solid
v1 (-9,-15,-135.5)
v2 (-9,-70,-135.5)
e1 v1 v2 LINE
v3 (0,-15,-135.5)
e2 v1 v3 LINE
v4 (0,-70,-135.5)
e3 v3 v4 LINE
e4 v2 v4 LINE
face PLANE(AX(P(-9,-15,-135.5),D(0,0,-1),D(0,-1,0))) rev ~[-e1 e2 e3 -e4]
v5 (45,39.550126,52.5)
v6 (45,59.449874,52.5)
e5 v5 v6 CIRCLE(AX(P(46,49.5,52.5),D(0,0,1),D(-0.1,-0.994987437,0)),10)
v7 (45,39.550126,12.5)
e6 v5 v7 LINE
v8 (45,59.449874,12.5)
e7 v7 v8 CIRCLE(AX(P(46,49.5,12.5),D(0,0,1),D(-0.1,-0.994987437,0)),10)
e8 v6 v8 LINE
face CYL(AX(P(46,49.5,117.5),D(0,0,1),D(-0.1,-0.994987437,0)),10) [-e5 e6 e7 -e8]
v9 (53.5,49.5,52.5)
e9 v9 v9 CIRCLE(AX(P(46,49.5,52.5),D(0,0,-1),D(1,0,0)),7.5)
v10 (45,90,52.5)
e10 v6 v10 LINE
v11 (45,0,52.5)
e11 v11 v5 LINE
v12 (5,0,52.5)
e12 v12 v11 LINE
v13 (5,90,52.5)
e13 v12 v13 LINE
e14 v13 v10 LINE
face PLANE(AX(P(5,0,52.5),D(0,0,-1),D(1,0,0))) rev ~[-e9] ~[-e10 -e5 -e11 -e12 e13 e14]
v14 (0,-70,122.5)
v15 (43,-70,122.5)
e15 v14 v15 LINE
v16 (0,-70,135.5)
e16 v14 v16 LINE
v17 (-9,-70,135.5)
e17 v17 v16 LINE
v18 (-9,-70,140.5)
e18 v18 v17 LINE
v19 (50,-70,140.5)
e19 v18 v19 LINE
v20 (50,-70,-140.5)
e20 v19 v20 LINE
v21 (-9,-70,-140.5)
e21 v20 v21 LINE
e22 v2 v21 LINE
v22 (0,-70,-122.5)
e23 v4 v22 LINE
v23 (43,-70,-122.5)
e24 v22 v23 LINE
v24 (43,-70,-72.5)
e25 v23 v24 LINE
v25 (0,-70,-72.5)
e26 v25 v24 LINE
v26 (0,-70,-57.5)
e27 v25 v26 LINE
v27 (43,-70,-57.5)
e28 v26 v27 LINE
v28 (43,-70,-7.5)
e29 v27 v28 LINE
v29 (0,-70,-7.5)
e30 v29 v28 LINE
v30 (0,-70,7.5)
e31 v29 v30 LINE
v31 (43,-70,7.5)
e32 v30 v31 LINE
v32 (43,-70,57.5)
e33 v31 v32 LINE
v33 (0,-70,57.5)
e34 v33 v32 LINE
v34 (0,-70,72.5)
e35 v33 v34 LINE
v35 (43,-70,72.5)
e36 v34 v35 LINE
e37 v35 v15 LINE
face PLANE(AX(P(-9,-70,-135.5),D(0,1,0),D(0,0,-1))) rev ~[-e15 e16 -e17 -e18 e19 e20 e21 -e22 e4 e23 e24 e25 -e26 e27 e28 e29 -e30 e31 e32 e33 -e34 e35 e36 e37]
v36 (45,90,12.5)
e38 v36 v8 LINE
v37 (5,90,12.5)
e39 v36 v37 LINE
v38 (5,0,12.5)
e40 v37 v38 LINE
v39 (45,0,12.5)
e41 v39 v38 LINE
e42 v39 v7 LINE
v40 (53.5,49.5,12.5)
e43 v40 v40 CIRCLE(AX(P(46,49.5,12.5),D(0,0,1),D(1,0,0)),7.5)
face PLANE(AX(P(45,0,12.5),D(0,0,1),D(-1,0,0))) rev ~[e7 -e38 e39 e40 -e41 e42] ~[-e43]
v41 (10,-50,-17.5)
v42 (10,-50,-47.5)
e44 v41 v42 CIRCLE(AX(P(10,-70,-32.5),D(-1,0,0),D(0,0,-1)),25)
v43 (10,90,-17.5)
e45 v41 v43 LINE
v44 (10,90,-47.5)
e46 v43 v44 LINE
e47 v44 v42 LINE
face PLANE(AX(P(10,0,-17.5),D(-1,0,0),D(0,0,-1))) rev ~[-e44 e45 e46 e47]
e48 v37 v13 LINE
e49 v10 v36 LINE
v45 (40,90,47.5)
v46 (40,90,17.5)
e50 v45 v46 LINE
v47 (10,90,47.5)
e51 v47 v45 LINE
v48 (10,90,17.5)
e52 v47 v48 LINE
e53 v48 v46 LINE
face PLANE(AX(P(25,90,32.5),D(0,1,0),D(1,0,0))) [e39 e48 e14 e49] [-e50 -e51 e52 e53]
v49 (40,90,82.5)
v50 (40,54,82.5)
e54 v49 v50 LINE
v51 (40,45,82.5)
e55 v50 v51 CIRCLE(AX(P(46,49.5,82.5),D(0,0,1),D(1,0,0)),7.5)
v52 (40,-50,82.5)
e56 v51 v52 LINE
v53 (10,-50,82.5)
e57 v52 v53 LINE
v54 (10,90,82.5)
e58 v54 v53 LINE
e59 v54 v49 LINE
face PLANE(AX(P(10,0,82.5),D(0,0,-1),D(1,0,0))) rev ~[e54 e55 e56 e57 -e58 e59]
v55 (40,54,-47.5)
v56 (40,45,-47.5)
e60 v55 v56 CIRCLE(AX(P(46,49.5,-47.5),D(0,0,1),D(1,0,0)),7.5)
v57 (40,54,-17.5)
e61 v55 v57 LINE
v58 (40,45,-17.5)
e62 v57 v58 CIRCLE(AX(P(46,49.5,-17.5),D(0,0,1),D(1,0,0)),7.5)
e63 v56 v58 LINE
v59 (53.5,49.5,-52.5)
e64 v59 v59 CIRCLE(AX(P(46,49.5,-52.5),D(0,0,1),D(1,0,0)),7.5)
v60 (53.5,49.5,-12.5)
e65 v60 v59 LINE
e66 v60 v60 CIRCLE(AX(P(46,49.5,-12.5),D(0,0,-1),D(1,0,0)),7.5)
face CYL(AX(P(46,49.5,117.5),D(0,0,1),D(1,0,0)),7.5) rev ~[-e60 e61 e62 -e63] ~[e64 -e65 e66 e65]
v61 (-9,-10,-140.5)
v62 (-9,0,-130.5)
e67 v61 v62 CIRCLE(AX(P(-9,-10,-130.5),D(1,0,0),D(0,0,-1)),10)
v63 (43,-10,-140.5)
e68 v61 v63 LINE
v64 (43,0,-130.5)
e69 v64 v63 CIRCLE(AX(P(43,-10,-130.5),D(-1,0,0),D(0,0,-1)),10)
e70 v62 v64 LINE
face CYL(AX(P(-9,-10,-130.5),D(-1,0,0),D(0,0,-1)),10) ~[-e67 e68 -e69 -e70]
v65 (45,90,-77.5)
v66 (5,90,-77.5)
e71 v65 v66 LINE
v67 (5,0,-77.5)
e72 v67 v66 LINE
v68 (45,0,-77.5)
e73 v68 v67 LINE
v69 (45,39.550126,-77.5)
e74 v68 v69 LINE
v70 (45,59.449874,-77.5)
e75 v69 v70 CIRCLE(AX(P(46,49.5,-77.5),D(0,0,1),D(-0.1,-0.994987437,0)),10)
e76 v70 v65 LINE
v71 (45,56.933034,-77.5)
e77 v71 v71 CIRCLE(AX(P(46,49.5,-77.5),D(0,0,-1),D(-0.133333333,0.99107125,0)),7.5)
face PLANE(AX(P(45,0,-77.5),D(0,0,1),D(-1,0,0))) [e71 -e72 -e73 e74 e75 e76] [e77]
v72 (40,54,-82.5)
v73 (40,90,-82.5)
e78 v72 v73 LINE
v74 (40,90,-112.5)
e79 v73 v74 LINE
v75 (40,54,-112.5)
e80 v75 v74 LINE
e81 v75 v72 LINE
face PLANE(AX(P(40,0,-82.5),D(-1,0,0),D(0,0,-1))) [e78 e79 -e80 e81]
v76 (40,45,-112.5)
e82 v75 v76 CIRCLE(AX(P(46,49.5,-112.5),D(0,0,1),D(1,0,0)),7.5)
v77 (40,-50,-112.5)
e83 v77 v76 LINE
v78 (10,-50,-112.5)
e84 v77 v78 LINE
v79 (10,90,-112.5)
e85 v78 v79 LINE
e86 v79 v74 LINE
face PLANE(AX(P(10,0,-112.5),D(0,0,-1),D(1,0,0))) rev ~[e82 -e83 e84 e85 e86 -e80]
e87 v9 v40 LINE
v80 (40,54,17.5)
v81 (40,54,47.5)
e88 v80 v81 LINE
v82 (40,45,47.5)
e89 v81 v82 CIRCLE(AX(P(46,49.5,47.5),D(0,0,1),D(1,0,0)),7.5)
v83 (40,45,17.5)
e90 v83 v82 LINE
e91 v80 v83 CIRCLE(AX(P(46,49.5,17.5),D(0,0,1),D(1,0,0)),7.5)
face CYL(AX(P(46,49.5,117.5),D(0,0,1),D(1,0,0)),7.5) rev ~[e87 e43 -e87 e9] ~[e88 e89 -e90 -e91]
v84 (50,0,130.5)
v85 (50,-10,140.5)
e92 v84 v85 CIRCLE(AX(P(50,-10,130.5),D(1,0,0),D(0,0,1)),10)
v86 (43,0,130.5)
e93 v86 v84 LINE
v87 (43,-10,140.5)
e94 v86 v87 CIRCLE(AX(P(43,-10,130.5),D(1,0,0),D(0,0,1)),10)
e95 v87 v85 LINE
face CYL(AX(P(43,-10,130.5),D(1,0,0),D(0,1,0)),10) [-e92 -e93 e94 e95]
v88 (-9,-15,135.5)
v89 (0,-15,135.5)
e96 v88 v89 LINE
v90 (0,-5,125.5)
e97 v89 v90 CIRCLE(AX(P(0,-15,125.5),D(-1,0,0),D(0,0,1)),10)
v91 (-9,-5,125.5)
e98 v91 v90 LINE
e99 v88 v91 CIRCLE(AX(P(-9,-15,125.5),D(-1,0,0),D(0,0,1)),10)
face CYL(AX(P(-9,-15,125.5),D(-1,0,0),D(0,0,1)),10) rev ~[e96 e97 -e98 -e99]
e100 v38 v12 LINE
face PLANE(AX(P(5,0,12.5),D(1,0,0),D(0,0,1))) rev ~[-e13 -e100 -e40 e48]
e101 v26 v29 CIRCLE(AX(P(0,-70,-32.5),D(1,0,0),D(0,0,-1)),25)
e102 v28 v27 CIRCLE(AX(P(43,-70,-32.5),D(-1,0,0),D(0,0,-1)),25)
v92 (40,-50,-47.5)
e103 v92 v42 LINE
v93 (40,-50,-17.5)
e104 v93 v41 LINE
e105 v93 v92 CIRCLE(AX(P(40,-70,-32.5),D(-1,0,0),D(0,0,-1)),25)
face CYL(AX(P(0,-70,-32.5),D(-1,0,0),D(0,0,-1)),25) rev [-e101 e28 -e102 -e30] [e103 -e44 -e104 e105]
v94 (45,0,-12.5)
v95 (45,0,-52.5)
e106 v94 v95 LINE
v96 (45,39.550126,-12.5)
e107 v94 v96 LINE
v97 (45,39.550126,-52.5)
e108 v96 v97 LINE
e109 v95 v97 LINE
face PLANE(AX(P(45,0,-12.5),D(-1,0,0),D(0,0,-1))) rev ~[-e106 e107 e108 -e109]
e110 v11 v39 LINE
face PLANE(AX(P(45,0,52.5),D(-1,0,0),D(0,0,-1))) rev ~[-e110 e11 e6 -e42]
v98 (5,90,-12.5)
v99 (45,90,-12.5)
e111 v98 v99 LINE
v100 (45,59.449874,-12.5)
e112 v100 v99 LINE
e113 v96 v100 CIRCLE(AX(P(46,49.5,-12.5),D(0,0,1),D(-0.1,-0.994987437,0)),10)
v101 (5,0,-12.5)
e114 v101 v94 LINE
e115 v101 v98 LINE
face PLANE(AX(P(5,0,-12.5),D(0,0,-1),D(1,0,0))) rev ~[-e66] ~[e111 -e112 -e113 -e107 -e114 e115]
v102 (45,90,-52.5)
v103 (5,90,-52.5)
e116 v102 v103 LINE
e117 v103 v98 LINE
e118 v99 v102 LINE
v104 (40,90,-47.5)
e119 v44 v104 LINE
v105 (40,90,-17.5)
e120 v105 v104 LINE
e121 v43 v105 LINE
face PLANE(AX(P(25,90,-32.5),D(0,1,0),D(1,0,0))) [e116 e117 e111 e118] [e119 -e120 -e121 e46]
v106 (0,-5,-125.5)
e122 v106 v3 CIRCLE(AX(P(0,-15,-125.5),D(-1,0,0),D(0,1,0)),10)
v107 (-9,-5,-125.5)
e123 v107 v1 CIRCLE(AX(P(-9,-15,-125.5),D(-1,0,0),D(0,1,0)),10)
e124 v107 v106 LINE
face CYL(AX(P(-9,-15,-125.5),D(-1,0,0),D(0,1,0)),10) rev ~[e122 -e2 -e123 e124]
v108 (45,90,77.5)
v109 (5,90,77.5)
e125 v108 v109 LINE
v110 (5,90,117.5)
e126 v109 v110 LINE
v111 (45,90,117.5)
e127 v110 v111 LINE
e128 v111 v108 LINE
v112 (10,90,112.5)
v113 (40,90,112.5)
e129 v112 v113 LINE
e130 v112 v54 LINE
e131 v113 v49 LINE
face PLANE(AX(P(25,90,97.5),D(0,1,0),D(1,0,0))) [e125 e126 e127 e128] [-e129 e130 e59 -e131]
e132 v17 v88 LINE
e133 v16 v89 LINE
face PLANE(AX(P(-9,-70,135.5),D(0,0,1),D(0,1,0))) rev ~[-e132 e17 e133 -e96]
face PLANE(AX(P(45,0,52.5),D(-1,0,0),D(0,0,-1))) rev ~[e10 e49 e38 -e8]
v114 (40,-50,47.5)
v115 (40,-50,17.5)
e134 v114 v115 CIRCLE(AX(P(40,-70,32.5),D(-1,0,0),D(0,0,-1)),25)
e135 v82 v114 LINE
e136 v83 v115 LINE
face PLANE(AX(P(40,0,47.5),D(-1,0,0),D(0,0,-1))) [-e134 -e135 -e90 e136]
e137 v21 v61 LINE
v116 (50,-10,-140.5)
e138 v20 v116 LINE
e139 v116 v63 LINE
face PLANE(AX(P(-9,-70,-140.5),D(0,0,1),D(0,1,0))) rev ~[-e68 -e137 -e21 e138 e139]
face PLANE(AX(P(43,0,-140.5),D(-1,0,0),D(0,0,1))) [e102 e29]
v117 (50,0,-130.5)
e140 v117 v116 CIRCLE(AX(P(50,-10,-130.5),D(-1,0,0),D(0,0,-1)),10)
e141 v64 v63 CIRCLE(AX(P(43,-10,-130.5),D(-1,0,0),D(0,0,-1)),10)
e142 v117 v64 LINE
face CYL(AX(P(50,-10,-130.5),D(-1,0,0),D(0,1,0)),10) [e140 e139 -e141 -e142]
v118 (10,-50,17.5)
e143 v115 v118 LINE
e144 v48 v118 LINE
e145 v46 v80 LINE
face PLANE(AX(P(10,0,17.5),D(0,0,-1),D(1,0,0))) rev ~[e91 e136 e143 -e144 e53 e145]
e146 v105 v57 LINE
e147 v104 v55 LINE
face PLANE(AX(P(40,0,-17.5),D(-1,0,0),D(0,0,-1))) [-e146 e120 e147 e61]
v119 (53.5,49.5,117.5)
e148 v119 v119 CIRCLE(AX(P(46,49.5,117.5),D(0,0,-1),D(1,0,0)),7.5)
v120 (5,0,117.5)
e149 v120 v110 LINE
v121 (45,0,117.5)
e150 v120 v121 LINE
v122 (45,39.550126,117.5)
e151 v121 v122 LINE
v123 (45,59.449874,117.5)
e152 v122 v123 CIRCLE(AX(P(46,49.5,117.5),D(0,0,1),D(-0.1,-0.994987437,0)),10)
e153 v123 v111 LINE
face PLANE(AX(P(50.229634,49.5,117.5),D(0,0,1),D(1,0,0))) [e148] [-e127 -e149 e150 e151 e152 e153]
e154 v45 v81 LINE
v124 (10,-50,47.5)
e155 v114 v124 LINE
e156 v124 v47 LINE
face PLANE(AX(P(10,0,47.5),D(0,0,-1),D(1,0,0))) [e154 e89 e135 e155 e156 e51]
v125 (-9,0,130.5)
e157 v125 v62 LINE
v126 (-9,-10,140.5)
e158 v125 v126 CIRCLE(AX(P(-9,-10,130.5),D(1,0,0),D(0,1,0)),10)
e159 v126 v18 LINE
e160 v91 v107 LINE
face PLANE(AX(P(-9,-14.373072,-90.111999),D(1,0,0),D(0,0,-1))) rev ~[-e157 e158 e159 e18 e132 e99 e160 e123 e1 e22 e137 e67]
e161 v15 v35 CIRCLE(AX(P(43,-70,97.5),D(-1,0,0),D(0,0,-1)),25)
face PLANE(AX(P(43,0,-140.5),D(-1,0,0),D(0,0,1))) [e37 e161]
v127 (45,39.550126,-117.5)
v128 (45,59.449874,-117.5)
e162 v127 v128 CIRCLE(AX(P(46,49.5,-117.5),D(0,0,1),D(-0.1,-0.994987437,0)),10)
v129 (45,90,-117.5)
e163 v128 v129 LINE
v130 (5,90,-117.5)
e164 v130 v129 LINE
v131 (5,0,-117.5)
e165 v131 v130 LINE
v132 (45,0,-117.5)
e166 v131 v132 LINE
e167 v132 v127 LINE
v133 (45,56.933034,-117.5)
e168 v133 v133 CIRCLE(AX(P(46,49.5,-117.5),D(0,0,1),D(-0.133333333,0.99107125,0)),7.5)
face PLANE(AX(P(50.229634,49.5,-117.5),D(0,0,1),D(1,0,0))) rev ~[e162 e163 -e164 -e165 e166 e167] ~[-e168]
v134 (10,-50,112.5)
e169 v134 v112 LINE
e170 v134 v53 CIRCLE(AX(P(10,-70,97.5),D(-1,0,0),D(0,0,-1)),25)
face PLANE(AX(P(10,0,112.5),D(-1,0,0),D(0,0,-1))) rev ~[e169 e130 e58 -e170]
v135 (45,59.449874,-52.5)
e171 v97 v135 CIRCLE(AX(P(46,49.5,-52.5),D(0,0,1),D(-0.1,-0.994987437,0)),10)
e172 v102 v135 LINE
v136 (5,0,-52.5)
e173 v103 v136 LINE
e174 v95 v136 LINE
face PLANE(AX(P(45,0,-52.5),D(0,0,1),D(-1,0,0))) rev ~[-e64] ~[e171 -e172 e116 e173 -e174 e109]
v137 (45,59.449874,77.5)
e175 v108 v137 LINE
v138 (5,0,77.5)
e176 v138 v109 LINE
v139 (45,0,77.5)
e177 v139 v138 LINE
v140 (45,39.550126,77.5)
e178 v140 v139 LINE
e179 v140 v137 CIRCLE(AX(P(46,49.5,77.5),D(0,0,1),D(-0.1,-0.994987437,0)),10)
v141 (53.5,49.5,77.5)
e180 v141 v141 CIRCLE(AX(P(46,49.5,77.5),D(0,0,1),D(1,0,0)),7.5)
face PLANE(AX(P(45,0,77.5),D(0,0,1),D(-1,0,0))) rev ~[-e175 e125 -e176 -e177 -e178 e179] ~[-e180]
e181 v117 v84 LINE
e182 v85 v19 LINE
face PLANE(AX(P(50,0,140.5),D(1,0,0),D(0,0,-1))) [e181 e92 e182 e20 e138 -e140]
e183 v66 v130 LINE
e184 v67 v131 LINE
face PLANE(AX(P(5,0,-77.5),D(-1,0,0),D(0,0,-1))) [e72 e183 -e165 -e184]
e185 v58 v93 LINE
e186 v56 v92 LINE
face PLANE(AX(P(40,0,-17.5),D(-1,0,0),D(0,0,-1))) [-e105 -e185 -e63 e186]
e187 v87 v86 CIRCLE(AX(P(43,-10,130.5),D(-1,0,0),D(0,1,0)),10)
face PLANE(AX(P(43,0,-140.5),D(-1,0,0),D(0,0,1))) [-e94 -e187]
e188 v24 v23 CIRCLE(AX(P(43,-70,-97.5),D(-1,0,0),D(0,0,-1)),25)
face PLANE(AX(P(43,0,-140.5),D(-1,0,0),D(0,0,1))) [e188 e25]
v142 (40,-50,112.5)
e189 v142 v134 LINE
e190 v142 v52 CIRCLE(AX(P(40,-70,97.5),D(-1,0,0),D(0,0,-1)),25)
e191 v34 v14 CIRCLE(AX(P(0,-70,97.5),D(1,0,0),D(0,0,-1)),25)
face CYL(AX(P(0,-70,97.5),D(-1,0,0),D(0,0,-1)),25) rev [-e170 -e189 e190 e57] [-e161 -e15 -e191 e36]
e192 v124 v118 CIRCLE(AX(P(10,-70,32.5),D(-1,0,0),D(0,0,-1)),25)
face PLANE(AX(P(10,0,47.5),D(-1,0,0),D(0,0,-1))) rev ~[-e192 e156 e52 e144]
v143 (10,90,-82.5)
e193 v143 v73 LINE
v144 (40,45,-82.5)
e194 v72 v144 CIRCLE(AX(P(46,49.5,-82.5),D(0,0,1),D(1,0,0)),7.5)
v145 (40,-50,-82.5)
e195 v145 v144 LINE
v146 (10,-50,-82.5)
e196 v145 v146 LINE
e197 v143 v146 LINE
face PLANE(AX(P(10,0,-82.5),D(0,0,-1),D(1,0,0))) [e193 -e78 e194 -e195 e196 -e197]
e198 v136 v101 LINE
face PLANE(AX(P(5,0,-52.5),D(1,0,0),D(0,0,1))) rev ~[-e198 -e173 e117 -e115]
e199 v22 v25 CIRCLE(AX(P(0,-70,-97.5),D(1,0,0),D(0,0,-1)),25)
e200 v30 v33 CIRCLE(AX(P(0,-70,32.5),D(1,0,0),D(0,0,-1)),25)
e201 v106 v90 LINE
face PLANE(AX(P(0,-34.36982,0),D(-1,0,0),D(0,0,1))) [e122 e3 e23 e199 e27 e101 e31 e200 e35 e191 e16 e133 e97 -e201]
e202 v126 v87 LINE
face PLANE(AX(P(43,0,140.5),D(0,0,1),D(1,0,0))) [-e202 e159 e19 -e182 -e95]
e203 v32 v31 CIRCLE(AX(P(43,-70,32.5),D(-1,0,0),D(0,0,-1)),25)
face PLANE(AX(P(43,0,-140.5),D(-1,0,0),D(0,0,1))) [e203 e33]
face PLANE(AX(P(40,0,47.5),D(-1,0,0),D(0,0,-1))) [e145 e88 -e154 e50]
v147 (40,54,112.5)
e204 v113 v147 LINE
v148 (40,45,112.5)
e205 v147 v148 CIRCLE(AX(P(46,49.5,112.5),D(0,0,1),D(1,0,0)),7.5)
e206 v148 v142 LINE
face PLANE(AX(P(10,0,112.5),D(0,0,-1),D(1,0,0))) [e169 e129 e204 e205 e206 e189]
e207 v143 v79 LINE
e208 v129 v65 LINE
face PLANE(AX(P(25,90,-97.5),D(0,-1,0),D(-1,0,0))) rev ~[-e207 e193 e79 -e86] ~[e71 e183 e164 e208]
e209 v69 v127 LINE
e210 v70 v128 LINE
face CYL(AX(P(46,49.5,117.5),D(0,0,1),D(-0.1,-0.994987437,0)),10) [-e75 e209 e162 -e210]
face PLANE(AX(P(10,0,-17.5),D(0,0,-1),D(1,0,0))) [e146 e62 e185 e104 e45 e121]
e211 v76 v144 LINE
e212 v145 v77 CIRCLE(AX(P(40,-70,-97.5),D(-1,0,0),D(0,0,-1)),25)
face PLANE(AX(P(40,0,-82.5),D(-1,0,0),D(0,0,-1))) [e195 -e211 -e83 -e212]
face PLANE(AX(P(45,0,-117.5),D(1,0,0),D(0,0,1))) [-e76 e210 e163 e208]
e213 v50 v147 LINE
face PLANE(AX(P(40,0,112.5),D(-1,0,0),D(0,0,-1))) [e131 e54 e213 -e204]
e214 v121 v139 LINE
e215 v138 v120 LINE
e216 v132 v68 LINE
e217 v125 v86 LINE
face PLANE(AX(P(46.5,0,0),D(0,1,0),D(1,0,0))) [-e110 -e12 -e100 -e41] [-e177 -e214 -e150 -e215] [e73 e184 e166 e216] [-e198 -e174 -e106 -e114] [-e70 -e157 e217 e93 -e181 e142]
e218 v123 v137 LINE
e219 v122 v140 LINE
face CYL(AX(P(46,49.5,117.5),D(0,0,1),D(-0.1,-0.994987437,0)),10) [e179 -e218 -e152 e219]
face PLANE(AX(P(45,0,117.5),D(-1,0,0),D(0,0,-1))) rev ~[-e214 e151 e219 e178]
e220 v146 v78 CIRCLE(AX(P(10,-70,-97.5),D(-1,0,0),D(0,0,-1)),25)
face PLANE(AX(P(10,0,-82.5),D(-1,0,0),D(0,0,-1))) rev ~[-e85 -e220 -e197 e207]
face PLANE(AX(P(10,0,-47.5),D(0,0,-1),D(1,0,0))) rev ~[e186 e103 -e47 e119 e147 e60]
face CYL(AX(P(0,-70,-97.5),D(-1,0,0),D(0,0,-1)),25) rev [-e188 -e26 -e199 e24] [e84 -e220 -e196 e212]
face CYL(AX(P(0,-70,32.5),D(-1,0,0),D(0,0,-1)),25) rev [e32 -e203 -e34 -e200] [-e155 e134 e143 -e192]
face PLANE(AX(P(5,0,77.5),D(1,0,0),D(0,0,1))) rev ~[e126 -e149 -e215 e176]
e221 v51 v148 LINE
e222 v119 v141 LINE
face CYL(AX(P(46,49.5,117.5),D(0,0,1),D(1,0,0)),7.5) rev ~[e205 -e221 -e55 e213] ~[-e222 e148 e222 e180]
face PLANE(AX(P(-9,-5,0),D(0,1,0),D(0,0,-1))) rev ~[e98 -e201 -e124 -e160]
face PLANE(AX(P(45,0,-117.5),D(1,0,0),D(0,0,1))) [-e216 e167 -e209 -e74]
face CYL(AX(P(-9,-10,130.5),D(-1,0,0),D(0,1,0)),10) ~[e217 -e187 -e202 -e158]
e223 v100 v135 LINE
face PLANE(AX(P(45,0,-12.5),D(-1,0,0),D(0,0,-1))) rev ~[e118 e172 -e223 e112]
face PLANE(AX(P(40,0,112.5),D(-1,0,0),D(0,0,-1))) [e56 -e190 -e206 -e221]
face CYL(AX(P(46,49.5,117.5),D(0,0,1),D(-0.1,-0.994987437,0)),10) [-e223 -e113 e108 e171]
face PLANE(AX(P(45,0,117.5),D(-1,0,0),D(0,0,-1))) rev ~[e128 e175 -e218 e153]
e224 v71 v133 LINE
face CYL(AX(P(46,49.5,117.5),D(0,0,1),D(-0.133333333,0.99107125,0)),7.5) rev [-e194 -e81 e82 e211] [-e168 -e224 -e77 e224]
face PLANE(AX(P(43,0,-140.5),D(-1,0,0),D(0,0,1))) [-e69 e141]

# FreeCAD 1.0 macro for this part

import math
import FreeCAD as App
import Part
import Sketcher
Q = App.Units.Quantity


def edges_at(feature, points):
    """Names of the edges that pass closest to the given points."""
    edges = feature.Shape.Edges
    near = lambda p: min(range(len(edges)), key=lambda i: edges[i].distToShape(Part.Vertex(*p))[0])
    return sorted({f"Edge{near(p) + 1}" for p in points})


def add_polygon(sketch, points):
    """Adds a closed chain of lines whose ends are joined by coincident constraints."""
    first, n = sketch.GeometryCount, len(points)
    for a, b in zip(points, points[1:] + points[:1]):
        sketch.addGeometry(Part.LineSegment(App.Vector(*a, 0), App.Vector(*b, 0)), False)
    for i in range(n):
        sketch.addConstraint(Sketcher.Constraint("Coincident", first + i, 2, first + (i + 1) % n, 1))

doc = App.newDocument("Part")
body = doc.addObject("PartDesign::Body", "Body")

# Sketch on YZ plane
sketch1 = doc.addObject("Sketcher::SketchObject", "Sketch")
body.addObject(sketch1)
sketch1.AttachmentSupport = (doc.YZ_Plane, [""])
sketch1.MapMode = "FlatFace"
sketch1.addGeometry([
    Part.LineSegment(App.Vector(0, -130, 0), App.Vector(0, 130, 0)),  # 0
    Part.ArcOfCircle(Part.Circle(App.Vector(-10, 130, 0), App.Vector(0, 0, 1), 10), math.radians(0), math.radians(90)),  # 1
    Part.LineSegment(App.Vector(-10, 140, 0), App.Vector(-70, 140, 0)),  # 2
    Part.LineSegment(App.Vector(-70, 140, 0), App.Vector(-70, 122, 0)),  # 3
    Part.ArcOfCircle(Part.Circle(App.Vector(-70, 98, 0), App.Vector(0, 0, 1), 25), math.radians(-90), math.radians(90)),  # 4
    Part.LineSegment(App.Vector(-70, 72, 0), App.Vector(-70, 58, 0)),  # 5
    Part.ArcOfCircle(Part.Circle(App.Vector(-70, 32, 0), App.Vector(0, 0, 1), 25), math.radians(-90), math.radians(90)),  # 6
    Part.LineSegment(App.Vector(-70, 8, 0), App.Vector(-70, -8, 0)),  # 7
    Part.ArcOfCircle(Part.Circle(App.Vector(-70, -32, 0), App.Vector(0, 0, 1), 25), math.radians(-90), math.radians(90)),  # 8
    Part.LineSegment(App.Vector(-70, -58, 0), App.Vector(-70, -72, 0)),  # 9
    Part.ArcOfCircle(Part.Circle(App.Vector(-70, -98, 0), App.Vector(0, 0, 1), 25), math.radians(-90), math.radians(90)),  # 10
    Part.LineSegment(App.Vector(-70, -122, 0), App.Vector(-70, -140, 0)),  # 11
    Part.LineSegment(App.Vector(-70, -140, 0), App.Vector(-10, -140, 0)),  # 12
    Part.ArcOfCircle(Part.Circle(App.Vector(-10, -130, 0), App.Vector(0, 0, 1), 10), math.radians(-90), math.radians(0)),  # 13
], False)
sketch1.addConstraint([
    Sketcher.Constraint("Tangent", 0, 2, 1, 1),
    Sketcher.Constraint("Tangent", 1, 2, 2, 1),
    Sketcher.Constraint("Coincident", 2, 2, 3, 1),
    Sketcher.Constraint("Coincident", 3, 2, 4, 2),
    Sketcher.Constraint("Coincident", 4, 1, 5, 1),
    Sketcher.Constraint("Coincident", 5, 2, 6, 2),
    Sketcher.Constraint("Coincident", 6, 1, 7, 1),
    Sketcher.Constraint("Coincident", 7, 2, 8, 2),
    Sketcher.Constraint("Coincident", 8, 1, 9, 1),
    Sketcher.Constraint("Coincident", 9, 2, 10, 2),
    Sketcher.Constraint("Coincident", 10, 1, 11, 1),
    Sketcher.Constraint("Coincident", 11, 2, 12, 1),
    Sketcher.Constraint("Tangent", 12, 2, 13, 1),
    Sketcher.Constraint("Tangent", 13, 2, 0, 1),
    Sketcher.Constraint("Vertical", 0),
    Sketcher.Constraint("Horizontal", 2),
    Sketcher.Constraint("Vertical", 3),
    Sketcher.Constraint("Vertical", 5),
    Sketcher.Constraint("Vertical", 7),
    Sketcher.Constraint("Vertical", 9),
    Sketcher.Constraint("Vertical", 11),
    Sketcher.Constraint("Horizontal", 12),
    Sketcher.Constraint("Equal", 4, 6),
    Sketcher.Constraint("Equal", 6, 8),
    Sketcher.Constraint("Equal", 8, 10),
    Sketcher.Constraint("Equal", 1, 13),
    Sketcher.Constraint("Symmetric", 0, 2, 13, 2, -1, 1),
    Sketcher.Constraint("Symmetric", 6, 3, 8, 3, -1),
    Sketcher.Constraint("Symmetric", 4, 3, 10, 3, -1),
    Sketcher.Constraint("Vertical", 4, 3, 6, 3),
    Sketcher.Constraint("Vertical", 10, 3, 2, 2),
    Sketcher.Constraint("Vertical", 3, 2, 4, 1),
    Sketcher.Constraint("Vertical", 5, 2, 6, 1),
    Sketcher.Constraint("Vertical", 7, 2, 8, 1),
    Sketcher.Constraint("Vertical", 9, 2, 10, 1),
    Sketcher.Constraint("Equal", 5, 7),
    Sketcher.Constraint("Radius", 1, Q("10 mm")),
    Sketcher.Constraint("Radius", 4, Q("25 mm")),
    Sketcher.Constraint("DistanceX", 2, 2, 2, 1, Q("60 mm")),
    Sketcher.Constraint("DistanceY", 0, 1, 0, 2, Q("261 mm")),
    Sketcher.Constraint("DistanceY", 3, 2, 3, 1, Q("18 mm")),
])
pad1 = doc.addObject("PartDesign::Pad", "Pad")
body.addObject(pad1)
pad1.Profile = sketch1
pad1.Length = 50

# Sketch on YZ plane
sketch2 = doc.addObject("Sketcher::SketchObject", "Sketch001")
body.addObject(sketch2)
sketch2.AttachmentSupport = (doc.YZ_Plane, [""])
sketch2.MapMode = "FlatFace"
sketch2.AttachmentOffset = App.Placement(App.Vector(0, 0, -9), App.Rotation())
sketch2.addGeometry([
    Part.LineSegment(App.Vector(0, 130, 0), App.Vector(0, 0, 0)),  # 0
    Part.LineSegment(App.Vector(0, 0, 0), App.Vector(-5, 0, 0)),  # 1
    Part.LineSegment(App.Vector(-5, 0, 0), App.Vector(-5, 126, 0)),  # 2
    Part.ArcOfCircle(Part.Circle(App.Vector(-15, 126, 0), App.Vector(0, 0, 1), 10), math.radians(0), math.radians(90)),  # 3
    Part.LineSegment(App.Vector(-15, 136, 0), App.Vector(-70, 136, 0)),  # 4
    Part.LineSegment(App.Vector(-70, 136, 0), App.Vector(-70, 140, 0)),  # 5
    Part.LineSegment(App.Vector(-70, 140, 0), App.Vector(-10, 140, 0)),  # 6
    Part.ArcOfCircle(Part.Circle(App.Vector(-10, 130, 0), App.Vector(0, 0, 1), 10), math.radians(0), math.radians(90)),  # 7
], False)
sketch2.addConstraint([
    Sketcher.Constraint("Coincident", 0, 2, 1, 1),
    Sketcher.Constraint("Coincident", 1, 2, 2, 1),
    Sketcher.Constraint("Tangent", 2, 2, 3, 1),
    Sketcher.Constraint("Tangent", 3, 2, 4, 1),
    Sketcher.Constraint("Coincident", 4, 2, 5, 1),
    Sketcher.Constraint("Coincident", 5, 2, 6, 1),
    Sketcher.Constraint("Tangent", 6, 2, 7, 2),
    Sketcher.Constraint("Tangent", 7, 1, 0, 1),
    Sketcher.Constraint("Vertical", 0),
    Sketcher.Constraint("Horizontal", 1),
    Sketcher.Constraint("Vertical", 2),
    Sketcher.Constraint("Horizontal", 4),
    Sketcher.Constraint("Vertical", 5),
    Sketcher.Constraint("Horizontal", 6),
    Sketcher.Constraint("Coincident", 0, 2, -1, 1),
    Sketcher.Constraint("Equal", 3, 7),
    Sketcher.Constraint("Equal", 1, 5),
    Sketcher.Constraint("Radius", 3, Q("10 mm")),
    Sketcher.Constraint("DistanceX", 1, 2, 1, 1, Q("5 mm")),
    Sketcher.Constraint("DistanceX", 4, 2, 4, 1, Q("55 mm")),
    Sketcher.Constraint("DistanceY", 0, 2, 0, 1, Q("130.5 mm")),
])
pad2 = doc.addObject("PartDesign::Pad", "Pad001")
body.addObject(pad2)
pad2.Profile = sketch2
pad2.Length = 9

# Sketch on YZ plane
sketch3 = doc.addObject("Sketcher::SketchObject", "Sketch002")
body.addObject(sketch3)
sketch3.AttachmentSupport = (doc.YZ_Plane, [""])
sketch3.MapMode = "FlatFace"
sketch3.AttachmentOffset = App.Placement(App.Vector(0, 0, -9), App.Rotation())
sketch3.addGeometry([
    Part.LineSegment(App.Vector(-5, 0, 0), App.Vector(0, 0, 0)),  # 0
    Part.LineSegment(App.Vector(0, 0, 0), App.Vector(0, -130, 0)),  # 1
    Part.ArcOfCircle(Part.Circle(App.Vector(-10, -130, 0), App.Vector(0, 0, 1), 10), math.radians(-90), math.radians(0)),  # 2
    Part.LineSegment(App.Vector(-10, -140, 0), App.Vector(-70, -140, 0)),  # 3
    Part.LineSegment(App.Vector(-70, -140, 0), App.Vector(-70, -136, 0)),  # 4
    Part.LineSegment(App.Vector(-70, -136, 0), App.Vector(-15, -136, 0)),  # 5
    Part.ArcOfCircle(Part.Circle(App.Vector(-15, -126, 0), App.Vector(0, 0, 1), 10), math.radians(-90), math.radians(0)),  # 6
    Part.LineSegment(App.Vector(-5, -126, 0), App.Vector(-5, 0, 0)),  # 7
], False)
sketch3.addConstraint([
    Sketcher.Constraint("Coincident", 0, 2, 1, 1),
    Sketcher.Constraint("Tangent", 1, 2, 2, 2),
    Sketcher.Constraint("Tangent", 2, 1, 3, 1),
    Sketcher.Constraint("Coincident", 3, 2, 4, 1),
    Sketcher.Constraint("Coincident", 4, 2, 5, 1),
    Sketcher.Constraint("Tangent", 5, 2, 6, 1),
    Sketcher.Constraint("Tangent", 6, 2, 7, 1),
    Sketcher.Constraint("Coincident", 7, 2, 0, 1),
    Sketcher.Constraint("Horizontal", 0),
    Sketcher.Constraint("Vertical", 1),
    Sketcher.Constraint("Horizontal", 3),
    Sketcher.Constraint("Vertical", 4),
    Sketcher.Constraint("Horizontal", 5),
    Sketcher.Constraint("Vertical", 7),
    Sketcher.Constraint("Coincident", 0, 2, -1, 1),
    Sketcher.Constraint("Equal", 2, 6),
    Sketcher.Constraint("Equal", 0, 4),
    Sketcher.Constraint("Radius", 2, Q("10 mm")),
    Sketcher.Constraint("DistanceX", 0, 1, 0, 2, Q("5 mm")),
    Sketcher.Constraint("DistanceX", 3, 2, 3, 1, Q("60 mm")),
    Sketcher.Constraint("DistanceY", 1, 2, 1, 1, Q("130.5 mm")),
])
pad3 = doc.addObject("PartDesign::Pad", "Pad002")
body.addObject(pad3)
pad3.Profile = sketch3
pad3.Length = 9

# Sketch on XZ plane
sketch4 = doc.addObject("Sketcher::SketchObject", "Sketch003")
body.addObject(sketch4)
sketch4.AttachmentSupport = (doc.XZ_Plane, [""])
sketch4.MapMode = "FlatFace"
add_polygon(sketch4, [(50, 140), (50, -140), (43, -140), (43, 140)])  # lines 0-3
sketch4.addConstraint([
    Sketcher.Constraint("Vertical", 0),
    Sketcher.Constraint("Horizontal", 1),
    Sketcher.Constraint("Vertical", 2),
    Sketcher.Constraint("Horizontal", 3),
    Sketcher.Constraint("DistanceX", 1, 2, 1, 1, Q("7 mm")),
    Sketcher.Constraint("DistanceY", 0, 2, 0, 1, Q("281 mm")),
    Sketcher.Constraint("DistanceX", -1, 1, 0, 2, Q("50 mm")),
    Sketcher.Constraint("DistanceY", 0, 2, -1, 1, Q("140.5 mm")),
])
pad4 = doc.addObject("PartDesign::Pad", "Pad003")
body.addObject(pad4)
pad4.Profile = sketch4
pad4.Length = 70

# Sketch on XZ plane
sketch5 = doc.addObject("Sketcher::SketchObject", "Sketch004")
body.addObject(sketch5)
sketch5.AttachmentSupport = (doc.XZ_Plane, [""])
sketch5.MapMode = "FlatFace"
add_polygon(sketch5, [(40, -18), (40, -48), (10, -48), (10, -18)])  # lines 0-3
add_polygon(sketch5, [(40, -112), (10, -112), (10, -82), (40, -82)])  # lines 4-7
add_polygon(sketch5, [(40, 48), (40, 18), (10, 18), (10, 48)])  # lines 8-11
add_polygon(sketch5, [(40, 112), (40, 82), (10, 82), (10, 112)])  # lines 12-15
sketch5.addConstraint([
    Sketcher.Constraint("Vertical", 0),
    Sketcher.Constraint("Horizontal", 1),
    Sketcher.Constraint("Vertical", 2),
    Sketcher.Constraint("Horizontal", 3),
    Sketcher.Constraint("Horizontal", 4),
    Sketcher.Constraint("Vertical", 5),
    Sketcher.Constraint("Horizontal", 6),
    Sketcher.Constraint("Vertical", 7),
    Sketcher.Constraint("Vertical", 8),
    Sketcher.Constraint("Horizontal", 9),
    Sketcher.Constraint("Vertical", 10),
    Sketcher.Constraint("Horizontal", 11),
    Sketcher.Constraint("Vertical", 12),
    Sketcher.Constraint("Horizontal", 13),
    Sketcher.Constraint("Vertical", 14),
    Sketcher.Constraint("Horizontal", 15),
    Sketcher.Constraint("Symmetric", 3, 2, 8, 2, -1),
    Sketcher.Constraint("Symmetric", 1, 2, 10, 2, -1),
    Sketcher.Constraint("Symmetric", 6, 2, 12, 2, -1),
    Sketcher.Constraint("Symmetric", 4, 2, 14, 2, -1),
    Sketcher.Constraint("Vertical", 2, 2, 4, 2),
    Sketcher.Constraint("Vertical", 3, 2, 6, 2),
    Sketcher.Constraint("Equal", 15, 0),
    Sketcher.Constraint("Equal", 2, 5),
    Sketcher.Constraint("DistanceX", 1, 2, 1, 1, Q("30 mm")),
    Sketcher.Constraint("DistanceX", -1, 1, 0, 2, Q("40 mm")),
    Sketcher.Constraint("DistanceY", 4, 2, 1, 2, Q("65 mm")),
    Sketcher.Constraint("DistanceY", 3, 2, 8, 2, Q("35 mm")),
])
pocket1 = doc.addObject("PartDesign::Pocket", "Pocket")
body.addObject(pocket1)
pocket1.Profile = sketch5
pocket1.Type = "ThroughAll"
pocket1.Midplane = True

# Sketch on XZ plane
sketch6 = doc.addObject("Sketcher::SketchObject", "Sketch005")
body.addObject(sketch6)
sketch6.AttachmentSupport = (doc.XZ_Plane, [""])
sketch6.MapMode = "FlatFace"
add_polygon(sketch6, [(45, -118), (5, -118), (5, -78), (45, -78)])  # lines 0-3
add_polygon(sketch6, [(10, -82), (10, -112), (40, -112), (40, -82)])  # lines 4-7
add_polygon(sketch6, [(5, -52), (5, -12), (45, -12), (45, -52)])  # lines 8-11
add_polygon(sketch6, [(40, -18), (10, -18), (10, -48), (40, -48)])  # lines 12-15
add_polygon(sketch6, [(5, 12), (5, 52), (45, 52), (45, 12)])  # lines 16-19
add_polygon(sketch6, [(40, 48), (10, 48), (10, 18), (40, 18)])  # lines 20-23
add_polygon(sketch6, [(5, 78), (5, 118), (45, 118), (45, 78)])  # lines 24-27
add_polygon(sketch6, [(40, 112), (10, 112), (10, 82), (40, 82)])  # lines 28-31
sketch6.addConstraint([
    Sketcher.Constraint("Horizontal", 0),
    Sketcher.Constraint("Vertical", 1),
    Sketcher.Constraint("Horizontal", 2),
    Sketcher.Constraint("Vertical", 3),
    Sketcher.Constraint("Vertical", 4),
    Sketcher.Constraint("Horizontal", 5),
    Sketcher.Constraint("Vertical", 6),
    Sketcher.Constraint("Horizontal", 7),
    Sketcher.Constraint("Vertical", 8),
    Sketcher.Constraint("Horizontal", 9),
    Sketcher.Constraint("Vertical", 10),
    Sketcher.Constraint("Horizontal", 11),
    Sketcher.Constraint("Horizontal", 12),
    Sketcher.Constraint("Vertical", 13),
    Sketcher.Constraint("Horizontal", 14),
    Sketcher.Constraint("Vertical", 15),
    Sketcher.Constraint("Vertical", 16),
    Sketcher.Constraint("Horizontal", 17),
    Sketcher.Constraint("Vertical", 18),
    Sketcher.Constraint("Horizontal", 19),
    Sketcher.Constraint("Horizontal", 20),
    Sketcher.Constraint("Vertical", 21),
    Sketcher.Constraint("Horizontal", 22),
    Sketcher.Constraint("Vertical", 23),
    Sketcher.Constraint("Vertical", 24),
    Sketcher.Constraint("Horizontal", 25),
    Sketcher.Constraint("Vertical", 26),
    Sketcher.Constraint("Horizontal", 27),
    Sketcher.Constraint("Horizontal", 28),
    Sketcher.Constraint("Vertical", 29),
    Sketcher.Constraint("Horizontal", 30),
    Sketcher.Constraint("Vertical", 31),
    Sketcher.Constraint("Symmetric", 11, 2, 16, 2, -1),
    Sketcher.Constraint("Symmetric", 9, 2, 18, 2, -1),
    Sketcher.Constraint("Symmetric", 13, 2, 20, 2, -1),
    Sketcher.Constraint("Symmetric", 15, 2, 22, 2, -1),
    Sketcher.Constraint("Symmetric", 0, 2, 24, 2, -1),
    Sketcher.Constraint("Symmetric", 2, 2, 26, 2, -1),
    Sketcher.Constraint("Symmetric", 4, 2, 28, 2, -1),
    Sketcher.Constraint("Symmetric", 6, 2, 30, 2, -1),
    Sketcher.Constraint("Vertical", 1, 2, 8, 2),
    Sketcher.Constraint("Vertical", 3, 2, 9, 2),
    Sketcher.Constraint("Vertical", 7, 2, 12, 2),
    Sketcher.Constraint("Vertical", 6, 2, 14, 2),
    Sketcher.Constraint("Equal", 27, 1),
    Sketcher.Constraint("Equal", 30, 4),
    Sketcher.Constraint("Equal", 3, 8),
    Sketcher.Constraint("Equal", 6, 13),
    Sketcher.Constraint("DistanceX", 0, 2, 0, 1, Q("40 mm")),
    Sketcher.Constraint("DistanceX", 5, 1, 5, 2, Q("30 mm")),
    Sketcher.Constraint("DistanceX", -1, 1, 0, 2, Q("5 mm")),
    Sketcher.Constraint("DistanceX", -1, 1, 4, 2, Q("10 mm")),
    Sketcher.Constraint("DistanceY", 0, 2, 4, 2, Q("5 mm")),
    Sketcher.Constraint("DistanceY", 1, 2, 8, 2, Q("65 mm")),
    Sketcher.Constraint("DistanceY", 12, 2, 8, 2, Q("5 mm")),
    Sketcher.Constraint("DistanceY", 8, 2, 16, 2, Q("65 mm")),
])
pad5 = doc.addObject("PartDesign::Pad", "Pad004")
body.addObject(pad5)
pad5.Profile = sketch6
pad5.Length = 90
pad5.Reversed = True

# Sketch on XY plane
sketch7 = doc.addObject("Sketcher::SketchObject", "Sketch006")
body.addObject(sketch7)
sketch7.AttachmentSupport = (doc.XY_Plane, [""])
sketch7.MapMode = "FlatFace"
sketch7.AttachmentOffset = App.Placement(App.Vector(0, 0, 117.5), App.Rotation())
sketch7.addGeometry([
    Part.LineSegment(App.Vector(45, 59.4, 0), App.Vector(45, 56.9, 0)),
    Part.ArcOfCircle(Part.Circle(App.Vector(46, 49.5, 0), App.Vector(0, 0, 1), 7.5), math.radians(-98), math.radians(98)),
    Part.LineSegment(App.Vector(45, 42.1, 0), App.Vector(45, 39.6, 0)),
    Part.ArcOfCircle(Part.Circle(App.Vector(46, 49.5, 0), App.Vector(0, 0, 1), 10), math.radians(-96), math.radians(96)),
], False)
sketch7.addConstraint([
    Sketcher.Constraint("Coincident", 0, 2, 1, 2),
    Sketcher.Constraint("Coincident", 1, 1, 2, 1),
    Sketcher.Constraint("Coincident", 2, 2, 3, 1),
    Sketcher.Constraint("Coincident", 3, 2, 0, 1),
    Sketcher.Constraint("Vertical", 0),
    Sketcher.Constraint("Vertical", 2),
    Sketcher.Constraint("Coincident", 3, 3, 1, 3),
    Sketcher.Constraint("Vertical", 0, 2, 1, 1),
    Sketcher.Constraint("Radius", 3, Q("10 mm")),
    Sketcher.Constraint("Radius", 1, Q("7.5 mm")),
    Sketcher.Constraint("DistanceX", -1, 1, 1, 3, Q("46 mm")),
    Sketcher.Constraint("DistanceX", -1, 1, 0, 2, Q("45 mm")),
    Sketcher.Constraint("DistanceY", -1, 1, 1, 3, Q("49.5 mm")),
])
pad6 = doc.addObject("PartDesign::Pad", "Pad005")
body.addObject(pad6)
pad6.Profile = sketch7
pad6.Length = 235
pad6.Reversed = True

# Sketch on YZ plane
sketch8 = doc.addObject("Sketcher::SketchObject", "Sketch007")
body.addObject(sketch8)
sketch8.AttachmentSupport = (doc.YZ_Plane, [""])
sketch8.MapMode = "FlatFace"
add_polygon(sketch8, [(75, 78), (34, 78), (34, 52), (75, 52)])  # lines 0-3
add_polygon(sketch8, [(71, 12), (32, 12), (32, -12), (71, -12)])  # lines 4-7
add_polygon(sketch8, [(67, -52), (27, -52), (27, -78), (67, -78)])  # lines 8-11
sketch8.addConstraint([
    Sketcher.Constraint("Horizontal", 0),
    Sketcher.Constraint("Vertical", 1),
    Sketcher.Constraint("Horizontal", 2),
    Sketcher.Constraint("Vertical", 3),
    Sketcher.Constraint("Horizontal", 4),
    Sketcher.Constraint("Vertical", 5),
    Sketcher.Constraint("Horizontal", 6),
    Sketcher.Constraint("Vertical", 7),
    Sketcher.Constraint("Horizontal", 8),
    Sketcher.Constraint("Vertical", 9),
    Sketcher.Constraint("Horizontal", 10),
    Sketcher.Constraint("Vertical", 11),
    Sketcher.Constraint("Equal", 3, 5),
    Sketcher.Constraint("Equal", 7, 9),
    Sketcher.Constraint("DistanceY", 1, 2, 1, 1, Q("25 mm")),
    Sketcher.Constraint("DistanceY", 4, 2, 1, 2, Q("40 mm")),
    Sketcher.Constraint("DistanceY", 8, 2, 5, 2, Q("40 mm")),
    Sketcher.Constraint("DistanceY", -1, 1, 0, 2, Q("77.5 mm")),
    Sketcher.Constraint("DistanceX", 0, 2, 0, 1, Q("40.903261 mm")),
    Sketcher.Constraint("DistanceX", 4, 2, 4, 1, Q("38.738525 mm")),
    Sketcher.Constraint("DistanceX", 8, 2, 8, 1, Q("39.919577 mm")),
    Sketcher.Constraint("DistanceX", -1, 1, 10, 2, Q("67.127359 mm")),
    Sketcher.Constraint("DistanceX", 6, 2, 2, 2, Q("4.05442 mm")),
    Sketcher.Constraint("DistanceX", 8, 2, 5, 2, Q("4.72421 mm")),
])
pocket2 = doc.addObject("PartDesign::Pocket", "Pocket001")
body.addObject(pocket2)
pocket2.Profile = sketch8
pocket2.Length = 235
pocket2.Reversed = True

# Sketch on XY plane
sketch9 = doc.addObject("Sketcher::SketchObject", "Sketch008")
body.addObject(sketch9)
sketch9.AttachmentSupport = (doc.XY_Plane, [""])
sketch9.MapMode = "FlatFace"
sketch9.AttachmentOffset = App.Placement(App.Vector(0, 0, 117.5), App.Rotation())
sketch9.addGeometry(Part.Circle(App.Vector(46, 50, 0), App.Vector(0, 0, 1), 8), False)
sketch9.addConstraint([
    Sketcher.Constraint("Diameter", 0, Q("15 mm")),
    Sketcher.Constraint("DistanceX", -1, 1, 0, 3, Q("46 mm")),
    Sketcher.Constraint("DistanceY", -1, 1, 0, 3, Q("49.5 mm")),
])
pocket3 = doc.addObject("PartDesign::Pocket", "Pocket002")
body.addObject(pocket3)
pocket3.Profile = sketch9
pocket3.Length = 235
doc.recompute()

fillet = doc.addObject("PartDesign::Fillet", "Fillet")
body.addObject(fillet)
fillet.Base = (pocket3, edges_at(pocket3, [(46.5, 0, 140.5), (46.5, 0, -140.5)]))
fillet.Radius = 10

doc.recompute()
